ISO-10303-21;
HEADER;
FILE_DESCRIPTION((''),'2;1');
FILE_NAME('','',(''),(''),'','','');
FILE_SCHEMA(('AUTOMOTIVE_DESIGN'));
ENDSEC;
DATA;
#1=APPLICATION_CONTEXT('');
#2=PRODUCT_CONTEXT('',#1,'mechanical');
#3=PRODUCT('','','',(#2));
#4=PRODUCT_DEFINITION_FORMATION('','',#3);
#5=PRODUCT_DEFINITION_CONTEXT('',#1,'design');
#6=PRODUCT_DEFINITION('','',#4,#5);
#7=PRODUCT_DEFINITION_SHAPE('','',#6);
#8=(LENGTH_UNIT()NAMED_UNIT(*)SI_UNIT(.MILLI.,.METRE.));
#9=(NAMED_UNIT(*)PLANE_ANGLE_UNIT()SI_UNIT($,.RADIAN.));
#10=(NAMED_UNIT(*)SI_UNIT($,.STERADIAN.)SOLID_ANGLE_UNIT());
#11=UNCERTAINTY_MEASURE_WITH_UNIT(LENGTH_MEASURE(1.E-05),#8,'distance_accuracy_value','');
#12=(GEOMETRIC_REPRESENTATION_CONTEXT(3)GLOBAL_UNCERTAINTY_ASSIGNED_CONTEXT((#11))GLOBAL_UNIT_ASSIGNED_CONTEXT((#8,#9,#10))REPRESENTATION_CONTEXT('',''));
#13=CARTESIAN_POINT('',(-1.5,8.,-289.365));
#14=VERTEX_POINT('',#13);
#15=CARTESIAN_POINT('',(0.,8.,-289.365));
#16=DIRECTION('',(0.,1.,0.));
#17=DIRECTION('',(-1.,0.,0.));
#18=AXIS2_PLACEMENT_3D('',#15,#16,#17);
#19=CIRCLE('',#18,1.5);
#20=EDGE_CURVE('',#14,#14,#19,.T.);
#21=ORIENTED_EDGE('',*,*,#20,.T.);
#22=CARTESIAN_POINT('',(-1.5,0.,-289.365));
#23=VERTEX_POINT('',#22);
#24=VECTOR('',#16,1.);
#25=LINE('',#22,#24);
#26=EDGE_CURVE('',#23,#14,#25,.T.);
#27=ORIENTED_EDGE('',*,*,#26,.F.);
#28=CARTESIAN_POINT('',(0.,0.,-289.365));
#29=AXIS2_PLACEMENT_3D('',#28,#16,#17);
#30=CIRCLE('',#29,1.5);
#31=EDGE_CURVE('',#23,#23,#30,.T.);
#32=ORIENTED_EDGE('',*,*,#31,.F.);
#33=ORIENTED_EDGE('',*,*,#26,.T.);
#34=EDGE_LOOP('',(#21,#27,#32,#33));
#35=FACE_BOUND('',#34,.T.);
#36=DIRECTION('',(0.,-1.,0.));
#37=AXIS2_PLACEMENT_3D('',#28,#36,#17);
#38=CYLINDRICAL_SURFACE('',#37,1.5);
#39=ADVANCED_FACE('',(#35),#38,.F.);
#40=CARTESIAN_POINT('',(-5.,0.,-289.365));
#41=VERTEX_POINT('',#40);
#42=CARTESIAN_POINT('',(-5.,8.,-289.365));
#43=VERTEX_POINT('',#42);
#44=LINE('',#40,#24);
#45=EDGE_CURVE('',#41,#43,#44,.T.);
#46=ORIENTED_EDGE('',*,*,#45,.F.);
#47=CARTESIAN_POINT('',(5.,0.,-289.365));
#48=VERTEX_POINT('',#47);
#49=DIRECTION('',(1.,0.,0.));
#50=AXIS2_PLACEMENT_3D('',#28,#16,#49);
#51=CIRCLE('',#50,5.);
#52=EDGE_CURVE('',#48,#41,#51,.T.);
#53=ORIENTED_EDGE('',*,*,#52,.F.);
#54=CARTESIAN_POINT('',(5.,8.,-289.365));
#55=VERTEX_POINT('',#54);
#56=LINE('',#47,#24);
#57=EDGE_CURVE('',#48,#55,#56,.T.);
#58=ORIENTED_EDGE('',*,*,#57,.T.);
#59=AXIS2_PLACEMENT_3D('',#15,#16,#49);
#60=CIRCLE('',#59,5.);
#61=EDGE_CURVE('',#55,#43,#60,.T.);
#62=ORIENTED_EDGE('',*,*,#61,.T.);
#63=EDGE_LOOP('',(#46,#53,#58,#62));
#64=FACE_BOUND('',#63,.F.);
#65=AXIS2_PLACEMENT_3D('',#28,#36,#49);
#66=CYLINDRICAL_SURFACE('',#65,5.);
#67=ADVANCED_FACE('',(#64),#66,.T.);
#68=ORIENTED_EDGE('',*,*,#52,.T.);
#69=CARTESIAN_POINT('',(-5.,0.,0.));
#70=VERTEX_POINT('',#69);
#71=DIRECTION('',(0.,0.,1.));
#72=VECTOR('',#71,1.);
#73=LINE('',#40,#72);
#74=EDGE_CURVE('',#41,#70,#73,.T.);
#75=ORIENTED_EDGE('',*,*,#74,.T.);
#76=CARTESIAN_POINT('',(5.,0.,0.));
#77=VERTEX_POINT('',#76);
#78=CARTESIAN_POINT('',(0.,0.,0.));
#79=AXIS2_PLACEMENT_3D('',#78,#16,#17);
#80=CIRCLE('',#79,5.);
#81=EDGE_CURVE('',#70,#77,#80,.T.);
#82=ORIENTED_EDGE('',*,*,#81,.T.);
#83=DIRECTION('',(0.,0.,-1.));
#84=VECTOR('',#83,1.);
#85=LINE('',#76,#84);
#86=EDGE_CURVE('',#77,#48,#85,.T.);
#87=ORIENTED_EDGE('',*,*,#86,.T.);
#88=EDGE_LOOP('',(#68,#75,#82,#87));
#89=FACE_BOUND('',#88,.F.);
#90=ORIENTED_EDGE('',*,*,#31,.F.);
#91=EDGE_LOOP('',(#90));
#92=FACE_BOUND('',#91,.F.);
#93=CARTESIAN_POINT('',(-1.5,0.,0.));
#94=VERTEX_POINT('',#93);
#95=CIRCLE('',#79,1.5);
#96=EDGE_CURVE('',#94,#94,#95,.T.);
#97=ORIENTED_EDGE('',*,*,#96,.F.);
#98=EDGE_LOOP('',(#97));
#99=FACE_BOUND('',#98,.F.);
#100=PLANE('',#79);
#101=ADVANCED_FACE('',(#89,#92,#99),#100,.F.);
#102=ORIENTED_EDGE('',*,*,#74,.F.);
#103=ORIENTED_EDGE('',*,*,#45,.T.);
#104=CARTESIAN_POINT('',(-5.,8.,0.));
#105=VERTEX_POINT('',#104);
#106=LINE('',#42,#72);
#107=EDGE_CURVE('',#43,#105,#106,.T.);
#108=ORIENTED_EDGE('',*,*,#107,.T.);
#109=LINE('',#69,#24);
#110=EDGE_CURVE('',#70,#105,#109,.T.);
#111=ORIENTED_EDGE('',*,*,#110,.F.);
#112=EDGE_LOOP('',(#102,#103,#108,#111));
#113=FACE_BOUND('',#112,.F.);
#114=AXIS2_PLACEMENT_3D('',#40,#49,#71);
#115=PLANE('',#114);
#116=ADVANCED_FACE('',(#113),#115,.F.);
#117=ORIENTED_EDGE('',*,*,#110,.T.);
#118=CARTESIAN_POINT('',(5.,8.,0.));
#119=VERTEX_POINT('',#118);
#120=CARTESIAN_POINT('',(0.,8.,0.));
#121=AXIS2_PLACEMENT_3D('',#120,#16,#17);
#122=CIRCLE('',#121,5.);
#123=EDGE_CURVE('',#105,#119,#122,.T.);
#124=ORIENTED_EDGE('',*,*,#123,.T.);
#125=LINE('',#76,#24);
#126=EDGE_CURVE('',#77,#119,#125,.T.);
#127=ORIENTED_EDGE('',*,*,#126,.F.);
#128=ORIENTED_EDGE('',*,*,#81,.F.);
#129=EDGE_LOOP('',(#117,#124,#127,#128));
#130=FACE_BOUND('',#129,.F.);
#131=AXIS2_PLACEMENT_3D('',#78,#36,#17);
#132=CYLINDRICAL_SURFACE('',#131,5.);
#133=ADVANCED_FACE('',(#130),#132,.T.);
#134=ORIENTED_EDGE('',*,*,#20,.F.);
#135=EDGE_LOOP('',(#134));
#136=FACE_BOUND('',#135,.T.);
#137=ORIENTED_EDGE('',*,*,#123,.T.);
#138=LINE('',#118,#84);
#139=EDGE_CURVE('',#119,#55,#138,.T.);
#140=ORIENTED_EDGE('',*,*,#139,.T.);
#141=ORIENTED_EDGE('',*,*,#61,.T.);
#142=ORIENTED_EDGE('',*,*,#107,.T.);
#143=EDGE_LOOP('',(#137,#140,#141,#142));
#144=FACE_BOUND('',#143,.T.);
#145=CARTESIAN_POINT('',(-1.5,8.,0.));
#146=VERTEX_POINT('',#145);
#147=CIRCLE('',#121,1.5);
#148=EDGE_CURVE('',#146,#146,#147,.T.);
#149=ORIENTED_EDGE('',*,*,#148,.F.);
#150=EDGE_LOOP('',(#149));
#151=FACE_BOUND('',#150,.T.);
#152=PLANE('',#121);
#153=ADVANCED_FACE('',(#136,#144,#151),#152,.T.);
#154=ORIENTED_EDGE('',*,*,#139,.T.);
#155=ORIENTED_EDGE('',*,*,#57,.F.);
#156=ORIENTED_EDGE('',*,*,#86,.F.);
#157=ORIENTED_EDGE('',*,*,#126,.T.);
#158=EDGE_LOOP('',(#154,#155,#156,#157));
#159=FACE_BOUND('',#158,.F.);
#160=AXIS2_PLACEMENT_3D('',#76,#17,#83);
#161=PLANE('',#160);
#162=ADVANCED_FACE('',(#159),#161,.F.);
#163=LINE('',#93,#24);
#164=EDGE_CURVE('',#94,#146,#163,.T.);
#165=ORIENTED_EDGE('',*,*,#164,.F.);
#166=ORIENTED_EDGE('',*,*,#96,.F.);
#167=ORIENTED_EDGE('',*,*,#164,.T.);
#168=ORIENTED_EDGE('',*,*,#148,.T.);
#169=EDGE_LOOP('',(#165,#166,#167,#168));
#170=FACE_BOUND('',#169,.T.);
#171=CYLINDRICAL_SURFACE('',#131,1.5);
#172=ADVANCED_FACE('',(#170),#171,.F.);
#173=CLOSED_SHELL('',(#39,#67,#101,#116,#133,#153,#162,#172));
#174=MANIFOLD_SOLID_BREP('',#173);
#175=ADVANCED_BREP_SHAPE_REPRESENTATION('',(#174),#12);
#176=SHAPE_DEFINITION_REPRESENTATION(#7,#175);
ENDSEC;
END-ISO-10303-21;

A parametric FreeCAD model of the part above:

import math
import FreeCAD as App
import Part
import Sketcher
from FreeCAD import Vector
Q = App.Units.Quantity

doc = App.newDocument("Part")
body = doc.addObject("PartDesign::Body", "Body")

sketch1 = body.newObject("Sketcher::SketchObject", "Sketch")
sketch1.AttachmentSupport = (doc.getObject("XZ_Plane"), [""])
sketch1.MapMode = "FlatFace"
sketch1.addGeometry([
    Part.ArcOfCircle(Part.Circle(Vector(0, 0, 0), Vector(0, 0, 1), 5), math.radians(0), math.radians(180)),
    Part.LineSegment(Vector(5, 0, 0), Vector(5, -289.4, 0)),
    Part.ArcOfCircle(Part.Circle(Vector(0, -289.4, 0), Vector(0, 0, 1), 5), math.radians(180), math.radians(360)),
    Part.LineSegment(Vector(-5, -289.4, 0), Vector(-5, 0, 0)),
    Part.Circle(Vector(0, -289.4, 0), Vector(0, 0, 1), 1.5),
    Part.Circle(Vector(0, 0, 0), Vector(0, 0, 1), 1.5),
], False)
sketch1.addConstraint([
    Sketcher.Constraint("Tangent", 0, 1, 1, 1),
    Sketcher.Constraint("Tangent", 1, 2, 2, 2),
    Sketcher.Constraint("Tangent", 2, 1, 3, 1),
    Sketcher.Constraint("Tangent", 3, 2, 0, 2),
    Sketcher.Constraint("Vertical", 1),
    Sketcher.Constraint("Vertical", 3),
    Sketcher.Constraint("Coincident", 0, 3, -1, 1),
    Sketcher.Constraint("Coincident", 5, 3, -1, 1),
    Sketcher.Constraint("Coincident", 4, 3, 2, 3),
    Sketcher.Constraint("Equal", 4, 5),
    Sketcher.Constraint("Diameter", 4, Q("3 mm")),
    Sketcher.Constraint("Radius", 0, Q("5 mm")),
    Sketcher.Constraint("DistanceY", 1, 2, 1, 1, Q("289.365 mm")),
])
pad1 = body.newObject("PartDesign::Pad", "Pad")
pad1.Profile = sketch1
pad1.Length = 8
pad1.Reversed = True

doc.recompute()
